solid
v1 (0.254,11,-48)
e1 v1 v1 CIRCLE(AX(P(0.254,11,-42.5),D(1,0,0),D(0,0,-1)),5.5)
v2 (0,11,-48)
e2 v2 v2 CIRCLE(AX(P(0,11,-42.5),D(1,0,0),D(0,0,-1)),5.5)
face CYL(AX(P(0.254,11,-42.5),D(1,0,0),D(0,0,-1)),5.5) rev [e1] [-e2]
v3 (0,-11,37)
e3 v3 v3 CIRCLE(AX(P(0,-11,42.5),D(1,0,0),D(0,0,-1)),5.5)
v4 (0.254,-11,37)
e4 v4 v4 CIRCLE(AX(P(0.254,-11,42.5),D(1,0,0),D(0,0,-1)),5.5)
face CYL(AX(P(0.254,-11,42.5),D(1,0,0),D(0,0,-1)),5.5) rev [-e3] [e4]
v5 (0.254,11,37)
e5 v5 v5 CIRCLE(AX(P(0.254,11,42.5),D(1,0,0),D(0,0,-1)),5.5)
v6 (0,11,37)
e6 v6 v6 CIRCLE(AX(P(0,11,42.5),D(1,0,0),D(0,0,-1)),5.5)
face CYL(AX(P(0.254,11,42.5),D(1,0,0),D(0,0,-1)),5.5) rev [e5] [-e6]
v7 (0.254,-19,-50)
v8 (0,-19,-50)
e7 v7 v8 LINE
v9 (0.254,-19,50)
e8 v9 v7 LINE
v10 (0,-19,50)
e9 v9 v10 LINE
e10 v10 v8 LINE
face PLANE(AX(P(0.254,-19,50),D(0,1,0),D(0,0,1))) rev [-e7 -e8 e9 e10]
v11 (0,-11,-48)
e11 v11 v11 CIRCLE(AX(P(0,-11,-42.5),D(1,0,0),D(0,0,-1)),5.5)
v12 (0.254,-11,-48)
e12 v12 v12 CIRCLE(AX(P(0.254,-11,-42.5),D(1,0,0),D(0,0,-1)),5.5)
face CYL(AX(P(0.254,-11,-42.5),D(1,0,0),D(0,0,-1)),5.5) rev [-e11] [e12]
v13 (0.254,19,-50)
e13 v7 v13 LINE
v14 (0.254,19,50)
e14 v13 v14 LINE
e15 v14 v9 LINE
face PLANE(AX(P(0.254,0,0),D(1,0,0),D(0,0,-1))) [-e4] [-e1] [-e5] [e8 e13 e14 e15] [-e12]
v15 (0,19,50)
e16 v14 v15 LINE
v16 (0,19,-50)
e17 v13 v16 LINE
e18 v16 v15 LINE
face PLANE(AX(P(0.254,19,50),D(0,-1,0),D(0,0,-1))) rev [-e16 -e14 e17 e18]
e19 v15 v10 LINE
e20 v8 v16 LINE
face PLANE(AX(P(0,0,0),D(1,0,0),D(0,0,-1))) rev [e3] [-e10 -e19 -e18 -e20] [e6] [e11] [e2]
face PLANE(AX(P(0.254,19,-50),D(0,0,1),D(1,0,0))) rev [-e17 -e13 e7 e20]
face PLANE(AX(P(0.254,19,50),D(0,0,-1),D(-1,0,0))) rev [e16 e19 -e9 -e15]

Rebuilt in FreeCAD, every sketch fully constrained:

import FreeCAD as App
import Part
import Sketcher
from FreeCAD import Vector


def add_polygon(sketch, points):
    """Adds a closed chain of lines whose ends are joined by coincident constraints."""
    first, n = sketch.GeometryCount, len(points)
    for a, b in zip(points, points[1:] + points[:1]):
        sketch.addGeometry(Part.LineSegment(App.Vector(*a, 0), App.Vector(*b, 0)), False)
    for i in range(n):
        sketch.addConstraint(Sketcher.Constraint("Coincident", first + i, 2, first + (i + 1) % n, 1))

doc = App.newDocument("Part")
body = doc.addObject("PartDesign::Body", "Body")

# Sketch on YZ plane
sketch1 = body.newObject("Sketcher::SketchObject", "Sketch")
sketch1.AttachmentSupport = (doc.getObject("YZ_Plane"), [""])
sketch1.MapMode = "FlatFace"
add_polygon(sketch1, [(19, 50), (-19, 50), (-19, -50), (19, -50)])  # lines 0-3
sketch1.addConstraint([
    Sketcher.Constraint("Horizontal", 0),
    Sketcher.Constraint("Vertical", 1),
    Sketcher.Constraint("Horizontal", 2),
    Sketcher.Constraint("Vertical", 3),
    Sketcher.Constraint("Symmetric", 0, 2, 2, 2, -1, 1),
    Sketcher.Constraint("DistanceX", 0, 2, 0, 1, 38.0),
    Sketcher.Constraint("DistanceY", 1, 2, 1, 1, 100.0),
])
pad1 = body.newObject("PartDesign::Pad", "Pad")
pad1.Profile = sketch1
pad1.Length = 0.254

# Sketch on YZ plane
sketch2 = body.newObject("Sketcher::SketchObject", "Sketch001")
sketch2.AttachmentSupport = (doc.getObject("YZ_Plane"), [""])
sketch2.MapMode = "FlatFace"
sketch2.AttachmentOffset = App.Placement(Vector(0, 0, 0.254), App.Rotation())
sketch2.addGeometry([
    Part.Circle(Vector(11, 42, 0), Vector(0, 0, 1), 6),
    Part.Circle(Vector(-11, 42, 0), Vector(0, 0, 1), 6),
    Part.Circle(Vector(11, -42, 0), Vector(0, 0, 1), 6),
    Part.Circle(Vector(-11, -42, 0), Vector(0, 0, 1), 6),
], False)
sketch2.addConstraint([
    Sketcher.Constraint("Equal", 0, 1),
    Sketcher.Constraint("Equal", 1, 2),
    Sketcher.Constraint("Equal", 2, 3),
    Sketcher.Constraint("Symmetric", 1, 3, 2, 3, -1, 1),
    Sketcher.Constraint("Symmetric", 0, 3, 3, 3, -1, 1),
    Sketcher.Constraint("Symmetric", 0, 3, 1, 3, -2),
    Sketcher.Constraint("Diameter", 0, 11.0),
    Sketcher.Constraint("DistanceX", -1, 1, 0, 3, 11.0),
    Sketcher.Constraint("DistanceY", 2, 3, 0, 3, 85.0),
])
doc.recompute()
hole = body.newObject("PartDesign::Hole", "Hole")
hole.Profile = sketch2
hole.ThreadType = "None"
hole.Diameter = 11
hole.DepthType = "ThroughAll"

doc.recompute()
